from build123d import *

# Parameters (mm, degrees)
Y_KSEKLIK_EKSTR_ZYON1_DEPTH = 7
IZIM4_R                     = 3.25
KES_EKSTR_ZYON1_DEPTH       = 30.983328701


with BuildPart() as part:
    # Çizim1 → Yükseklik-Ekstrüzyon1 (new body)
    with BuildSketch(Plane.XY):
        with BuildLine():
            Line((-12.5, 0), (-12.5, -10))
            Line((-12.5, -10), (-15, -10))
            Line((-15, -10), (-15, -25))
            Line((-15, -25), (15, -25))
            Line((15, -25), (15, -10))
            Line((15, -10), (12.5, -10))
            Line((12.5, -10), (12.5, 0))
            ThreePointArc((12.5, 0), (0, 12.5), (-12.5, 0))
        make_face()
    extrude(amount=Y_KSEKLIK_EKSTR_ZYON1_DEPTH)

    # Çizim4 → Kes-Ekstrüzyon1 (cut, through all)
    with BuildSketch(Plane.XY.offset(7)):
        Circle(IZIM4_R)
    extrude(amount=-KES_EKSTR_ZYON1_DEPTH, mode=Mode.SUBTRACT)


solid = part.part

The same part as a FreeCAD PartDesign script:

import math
import FreeCAD as App
import Part
import Sketcher

V = App.Vector
Q = App.Units.Quantity

doc = App.newDocument("Part")
params = doc.addObject("Spreadsheet::Sheet", "Params")
for row, (alias, value) in enumerate([
    ("sketch1_radius", "12.5 mm"),
    ("sketch1_width", "30 mm"),
    ("sketch1_height", "10 mm"),
    ("sketch1_height2", "15 mm"),
    ("pad1_length", "7 mm"),
    ("sketch2_diameter", "6.5 mm"),
], start=1):
    params.set(f"A{row}", alias)
    params.set(f"B{row}", "=" + value)
    params.setAlias(f"B{row}", alias)

body = doc.addObject("PartDesign::Body", "Body")

# Sketch on XY plane
sketch1 = body.newObject("Sketcher::SketchObject", "Sketch")
sketch1.AttachmentSupport = (doc.getObject("XY_Plane"), [""])
sketch1.MapMode = "FlatFace"
sketch1.addGeometry([
    Part.LineSegment(V(-12.5, 0, 0), V(-12.5, -10, 0)),  # 0
    Part.LineSegment(V(-12.5, -10, 0), V(-15, -10, 0)),  # 1
    Part.LineSegment(V(-15, -10, 0), V(-15, -25, 0)),  # 2
    Part.LineSegment(V(-15, -25, 0), V(15, -25, 0)),  # 3
    Part.LineSegment(V(15, -25, 0), V(15, -10, 0)),  # 4
    Part.LineSegment(V(15, -10, 0), V(12.5, -10, 0)),  # 5
    Part.LineSegment(V(12.5, -10, 0), V(12.5, 0, 0)),  # 6
    Part.ArcOfCircle(Part.Circle(V(0, 0, 0), V(0, 0, 1), 12.5), math.radians(0), math.radians(180)),  # 7
], False)
sketch1.addConstraint([
    Sketcher.Constraint("Coincident", 0, 2, 1, 1),
    Sketcher.Constraint("Coincident", 1, 2, 2, 1),
    Sketcher.Constraint("Coincident", 2, 2, 3, 1),
    Sketcher.Constraint("Coincident", 3, 2, 4, 1),
    Sketcher.Constraint("Coincident", 4, 2, 5, 1),
    Sketcher.Constraint("Coincident", 5, 2, 6, 1),
    Sketcher.Constraint("Tangent", 6, 2, 7, 1),
    Sketcher.Constraint("Tangent", 7, 2, 0, 1),
    Sketcher.Constraint("Vertical", 0),
    Sketcher.Constraint("Horizontal", 1),
    Sketcher.Constraint("Vertical", 2),
    Sketcher.Constraint("Horizontal", 3),
    Sketcher.Constraint("Vertical", 4),
    Sketcher.Constraint("Horizontal", 5),
    Sketcher.Constraint("Vertical", 6),
    Sketcher.Constraint("Coincident", 7, 3, -1, 1),
    Sketcher.Constraint("Symmetric", 1, 2, 4, 2, -2),
    Sketcher.Constraint("Radius", 7, Q("12.5 mm")),
    Sketcher.Constraint("DistanceX", 3, 1, 3, 2, Q("30 mm")),
    Sketcher.Constraint("DistanceY", 0, 2, 0, 1, Q("10 mm")),
    Sketcher.Constraint("DistanceY", 2, 2, 2, 1, Q("15 mm")),
])
sketch1.setExpression("Constraints[17]", "Params.sketch1_radius")
sketch1.setExpression("Constraints[18]", "Params.sketch1_width")
sketch1.setExpression("Constraints[19]", "Params.sketch1_height")
sketch1.setExpression("Constraints[20]", "Params.sketch1_height2")
pad1 = body.newObject("PartDesign::Pad", "Pad")
pad1.Profile = sketch1
pad1.setExpression("Length", "Params.pad1_length")

# Sketch on XY plane
sketch2 = body.newObject("Sketcher::SketchObject", "Sketch001")
sketch2.AttachmentSupport = (doc.getObject("XY_Plane"), [""])
sketch2.MapMode = "FlatFace"
sketch2.AttachmentOffset = App.Placement(V(0, 0, 7), App.Rotation())
sketch2.addGeometry(Part.Circle(V(0, 0, 0), V(0, 0, 1), 3.2), False)
sketch2.addConstraint([
    Sketcher.Constraint("Coincident", 0, 3, -1, 1),
    Sketcher.Constraint("Diameter", 0, Q("6.5 mm")),
])
sketch2.setExpression("Constraints[1]", "Params.sketch2_diameter")
pocket1 = body.newObject("PartDesign::Pocket", "Pocket")
pocket1.Profile = sketch2
pocket1.Type = "ThroughAll"

doc.recompute()
